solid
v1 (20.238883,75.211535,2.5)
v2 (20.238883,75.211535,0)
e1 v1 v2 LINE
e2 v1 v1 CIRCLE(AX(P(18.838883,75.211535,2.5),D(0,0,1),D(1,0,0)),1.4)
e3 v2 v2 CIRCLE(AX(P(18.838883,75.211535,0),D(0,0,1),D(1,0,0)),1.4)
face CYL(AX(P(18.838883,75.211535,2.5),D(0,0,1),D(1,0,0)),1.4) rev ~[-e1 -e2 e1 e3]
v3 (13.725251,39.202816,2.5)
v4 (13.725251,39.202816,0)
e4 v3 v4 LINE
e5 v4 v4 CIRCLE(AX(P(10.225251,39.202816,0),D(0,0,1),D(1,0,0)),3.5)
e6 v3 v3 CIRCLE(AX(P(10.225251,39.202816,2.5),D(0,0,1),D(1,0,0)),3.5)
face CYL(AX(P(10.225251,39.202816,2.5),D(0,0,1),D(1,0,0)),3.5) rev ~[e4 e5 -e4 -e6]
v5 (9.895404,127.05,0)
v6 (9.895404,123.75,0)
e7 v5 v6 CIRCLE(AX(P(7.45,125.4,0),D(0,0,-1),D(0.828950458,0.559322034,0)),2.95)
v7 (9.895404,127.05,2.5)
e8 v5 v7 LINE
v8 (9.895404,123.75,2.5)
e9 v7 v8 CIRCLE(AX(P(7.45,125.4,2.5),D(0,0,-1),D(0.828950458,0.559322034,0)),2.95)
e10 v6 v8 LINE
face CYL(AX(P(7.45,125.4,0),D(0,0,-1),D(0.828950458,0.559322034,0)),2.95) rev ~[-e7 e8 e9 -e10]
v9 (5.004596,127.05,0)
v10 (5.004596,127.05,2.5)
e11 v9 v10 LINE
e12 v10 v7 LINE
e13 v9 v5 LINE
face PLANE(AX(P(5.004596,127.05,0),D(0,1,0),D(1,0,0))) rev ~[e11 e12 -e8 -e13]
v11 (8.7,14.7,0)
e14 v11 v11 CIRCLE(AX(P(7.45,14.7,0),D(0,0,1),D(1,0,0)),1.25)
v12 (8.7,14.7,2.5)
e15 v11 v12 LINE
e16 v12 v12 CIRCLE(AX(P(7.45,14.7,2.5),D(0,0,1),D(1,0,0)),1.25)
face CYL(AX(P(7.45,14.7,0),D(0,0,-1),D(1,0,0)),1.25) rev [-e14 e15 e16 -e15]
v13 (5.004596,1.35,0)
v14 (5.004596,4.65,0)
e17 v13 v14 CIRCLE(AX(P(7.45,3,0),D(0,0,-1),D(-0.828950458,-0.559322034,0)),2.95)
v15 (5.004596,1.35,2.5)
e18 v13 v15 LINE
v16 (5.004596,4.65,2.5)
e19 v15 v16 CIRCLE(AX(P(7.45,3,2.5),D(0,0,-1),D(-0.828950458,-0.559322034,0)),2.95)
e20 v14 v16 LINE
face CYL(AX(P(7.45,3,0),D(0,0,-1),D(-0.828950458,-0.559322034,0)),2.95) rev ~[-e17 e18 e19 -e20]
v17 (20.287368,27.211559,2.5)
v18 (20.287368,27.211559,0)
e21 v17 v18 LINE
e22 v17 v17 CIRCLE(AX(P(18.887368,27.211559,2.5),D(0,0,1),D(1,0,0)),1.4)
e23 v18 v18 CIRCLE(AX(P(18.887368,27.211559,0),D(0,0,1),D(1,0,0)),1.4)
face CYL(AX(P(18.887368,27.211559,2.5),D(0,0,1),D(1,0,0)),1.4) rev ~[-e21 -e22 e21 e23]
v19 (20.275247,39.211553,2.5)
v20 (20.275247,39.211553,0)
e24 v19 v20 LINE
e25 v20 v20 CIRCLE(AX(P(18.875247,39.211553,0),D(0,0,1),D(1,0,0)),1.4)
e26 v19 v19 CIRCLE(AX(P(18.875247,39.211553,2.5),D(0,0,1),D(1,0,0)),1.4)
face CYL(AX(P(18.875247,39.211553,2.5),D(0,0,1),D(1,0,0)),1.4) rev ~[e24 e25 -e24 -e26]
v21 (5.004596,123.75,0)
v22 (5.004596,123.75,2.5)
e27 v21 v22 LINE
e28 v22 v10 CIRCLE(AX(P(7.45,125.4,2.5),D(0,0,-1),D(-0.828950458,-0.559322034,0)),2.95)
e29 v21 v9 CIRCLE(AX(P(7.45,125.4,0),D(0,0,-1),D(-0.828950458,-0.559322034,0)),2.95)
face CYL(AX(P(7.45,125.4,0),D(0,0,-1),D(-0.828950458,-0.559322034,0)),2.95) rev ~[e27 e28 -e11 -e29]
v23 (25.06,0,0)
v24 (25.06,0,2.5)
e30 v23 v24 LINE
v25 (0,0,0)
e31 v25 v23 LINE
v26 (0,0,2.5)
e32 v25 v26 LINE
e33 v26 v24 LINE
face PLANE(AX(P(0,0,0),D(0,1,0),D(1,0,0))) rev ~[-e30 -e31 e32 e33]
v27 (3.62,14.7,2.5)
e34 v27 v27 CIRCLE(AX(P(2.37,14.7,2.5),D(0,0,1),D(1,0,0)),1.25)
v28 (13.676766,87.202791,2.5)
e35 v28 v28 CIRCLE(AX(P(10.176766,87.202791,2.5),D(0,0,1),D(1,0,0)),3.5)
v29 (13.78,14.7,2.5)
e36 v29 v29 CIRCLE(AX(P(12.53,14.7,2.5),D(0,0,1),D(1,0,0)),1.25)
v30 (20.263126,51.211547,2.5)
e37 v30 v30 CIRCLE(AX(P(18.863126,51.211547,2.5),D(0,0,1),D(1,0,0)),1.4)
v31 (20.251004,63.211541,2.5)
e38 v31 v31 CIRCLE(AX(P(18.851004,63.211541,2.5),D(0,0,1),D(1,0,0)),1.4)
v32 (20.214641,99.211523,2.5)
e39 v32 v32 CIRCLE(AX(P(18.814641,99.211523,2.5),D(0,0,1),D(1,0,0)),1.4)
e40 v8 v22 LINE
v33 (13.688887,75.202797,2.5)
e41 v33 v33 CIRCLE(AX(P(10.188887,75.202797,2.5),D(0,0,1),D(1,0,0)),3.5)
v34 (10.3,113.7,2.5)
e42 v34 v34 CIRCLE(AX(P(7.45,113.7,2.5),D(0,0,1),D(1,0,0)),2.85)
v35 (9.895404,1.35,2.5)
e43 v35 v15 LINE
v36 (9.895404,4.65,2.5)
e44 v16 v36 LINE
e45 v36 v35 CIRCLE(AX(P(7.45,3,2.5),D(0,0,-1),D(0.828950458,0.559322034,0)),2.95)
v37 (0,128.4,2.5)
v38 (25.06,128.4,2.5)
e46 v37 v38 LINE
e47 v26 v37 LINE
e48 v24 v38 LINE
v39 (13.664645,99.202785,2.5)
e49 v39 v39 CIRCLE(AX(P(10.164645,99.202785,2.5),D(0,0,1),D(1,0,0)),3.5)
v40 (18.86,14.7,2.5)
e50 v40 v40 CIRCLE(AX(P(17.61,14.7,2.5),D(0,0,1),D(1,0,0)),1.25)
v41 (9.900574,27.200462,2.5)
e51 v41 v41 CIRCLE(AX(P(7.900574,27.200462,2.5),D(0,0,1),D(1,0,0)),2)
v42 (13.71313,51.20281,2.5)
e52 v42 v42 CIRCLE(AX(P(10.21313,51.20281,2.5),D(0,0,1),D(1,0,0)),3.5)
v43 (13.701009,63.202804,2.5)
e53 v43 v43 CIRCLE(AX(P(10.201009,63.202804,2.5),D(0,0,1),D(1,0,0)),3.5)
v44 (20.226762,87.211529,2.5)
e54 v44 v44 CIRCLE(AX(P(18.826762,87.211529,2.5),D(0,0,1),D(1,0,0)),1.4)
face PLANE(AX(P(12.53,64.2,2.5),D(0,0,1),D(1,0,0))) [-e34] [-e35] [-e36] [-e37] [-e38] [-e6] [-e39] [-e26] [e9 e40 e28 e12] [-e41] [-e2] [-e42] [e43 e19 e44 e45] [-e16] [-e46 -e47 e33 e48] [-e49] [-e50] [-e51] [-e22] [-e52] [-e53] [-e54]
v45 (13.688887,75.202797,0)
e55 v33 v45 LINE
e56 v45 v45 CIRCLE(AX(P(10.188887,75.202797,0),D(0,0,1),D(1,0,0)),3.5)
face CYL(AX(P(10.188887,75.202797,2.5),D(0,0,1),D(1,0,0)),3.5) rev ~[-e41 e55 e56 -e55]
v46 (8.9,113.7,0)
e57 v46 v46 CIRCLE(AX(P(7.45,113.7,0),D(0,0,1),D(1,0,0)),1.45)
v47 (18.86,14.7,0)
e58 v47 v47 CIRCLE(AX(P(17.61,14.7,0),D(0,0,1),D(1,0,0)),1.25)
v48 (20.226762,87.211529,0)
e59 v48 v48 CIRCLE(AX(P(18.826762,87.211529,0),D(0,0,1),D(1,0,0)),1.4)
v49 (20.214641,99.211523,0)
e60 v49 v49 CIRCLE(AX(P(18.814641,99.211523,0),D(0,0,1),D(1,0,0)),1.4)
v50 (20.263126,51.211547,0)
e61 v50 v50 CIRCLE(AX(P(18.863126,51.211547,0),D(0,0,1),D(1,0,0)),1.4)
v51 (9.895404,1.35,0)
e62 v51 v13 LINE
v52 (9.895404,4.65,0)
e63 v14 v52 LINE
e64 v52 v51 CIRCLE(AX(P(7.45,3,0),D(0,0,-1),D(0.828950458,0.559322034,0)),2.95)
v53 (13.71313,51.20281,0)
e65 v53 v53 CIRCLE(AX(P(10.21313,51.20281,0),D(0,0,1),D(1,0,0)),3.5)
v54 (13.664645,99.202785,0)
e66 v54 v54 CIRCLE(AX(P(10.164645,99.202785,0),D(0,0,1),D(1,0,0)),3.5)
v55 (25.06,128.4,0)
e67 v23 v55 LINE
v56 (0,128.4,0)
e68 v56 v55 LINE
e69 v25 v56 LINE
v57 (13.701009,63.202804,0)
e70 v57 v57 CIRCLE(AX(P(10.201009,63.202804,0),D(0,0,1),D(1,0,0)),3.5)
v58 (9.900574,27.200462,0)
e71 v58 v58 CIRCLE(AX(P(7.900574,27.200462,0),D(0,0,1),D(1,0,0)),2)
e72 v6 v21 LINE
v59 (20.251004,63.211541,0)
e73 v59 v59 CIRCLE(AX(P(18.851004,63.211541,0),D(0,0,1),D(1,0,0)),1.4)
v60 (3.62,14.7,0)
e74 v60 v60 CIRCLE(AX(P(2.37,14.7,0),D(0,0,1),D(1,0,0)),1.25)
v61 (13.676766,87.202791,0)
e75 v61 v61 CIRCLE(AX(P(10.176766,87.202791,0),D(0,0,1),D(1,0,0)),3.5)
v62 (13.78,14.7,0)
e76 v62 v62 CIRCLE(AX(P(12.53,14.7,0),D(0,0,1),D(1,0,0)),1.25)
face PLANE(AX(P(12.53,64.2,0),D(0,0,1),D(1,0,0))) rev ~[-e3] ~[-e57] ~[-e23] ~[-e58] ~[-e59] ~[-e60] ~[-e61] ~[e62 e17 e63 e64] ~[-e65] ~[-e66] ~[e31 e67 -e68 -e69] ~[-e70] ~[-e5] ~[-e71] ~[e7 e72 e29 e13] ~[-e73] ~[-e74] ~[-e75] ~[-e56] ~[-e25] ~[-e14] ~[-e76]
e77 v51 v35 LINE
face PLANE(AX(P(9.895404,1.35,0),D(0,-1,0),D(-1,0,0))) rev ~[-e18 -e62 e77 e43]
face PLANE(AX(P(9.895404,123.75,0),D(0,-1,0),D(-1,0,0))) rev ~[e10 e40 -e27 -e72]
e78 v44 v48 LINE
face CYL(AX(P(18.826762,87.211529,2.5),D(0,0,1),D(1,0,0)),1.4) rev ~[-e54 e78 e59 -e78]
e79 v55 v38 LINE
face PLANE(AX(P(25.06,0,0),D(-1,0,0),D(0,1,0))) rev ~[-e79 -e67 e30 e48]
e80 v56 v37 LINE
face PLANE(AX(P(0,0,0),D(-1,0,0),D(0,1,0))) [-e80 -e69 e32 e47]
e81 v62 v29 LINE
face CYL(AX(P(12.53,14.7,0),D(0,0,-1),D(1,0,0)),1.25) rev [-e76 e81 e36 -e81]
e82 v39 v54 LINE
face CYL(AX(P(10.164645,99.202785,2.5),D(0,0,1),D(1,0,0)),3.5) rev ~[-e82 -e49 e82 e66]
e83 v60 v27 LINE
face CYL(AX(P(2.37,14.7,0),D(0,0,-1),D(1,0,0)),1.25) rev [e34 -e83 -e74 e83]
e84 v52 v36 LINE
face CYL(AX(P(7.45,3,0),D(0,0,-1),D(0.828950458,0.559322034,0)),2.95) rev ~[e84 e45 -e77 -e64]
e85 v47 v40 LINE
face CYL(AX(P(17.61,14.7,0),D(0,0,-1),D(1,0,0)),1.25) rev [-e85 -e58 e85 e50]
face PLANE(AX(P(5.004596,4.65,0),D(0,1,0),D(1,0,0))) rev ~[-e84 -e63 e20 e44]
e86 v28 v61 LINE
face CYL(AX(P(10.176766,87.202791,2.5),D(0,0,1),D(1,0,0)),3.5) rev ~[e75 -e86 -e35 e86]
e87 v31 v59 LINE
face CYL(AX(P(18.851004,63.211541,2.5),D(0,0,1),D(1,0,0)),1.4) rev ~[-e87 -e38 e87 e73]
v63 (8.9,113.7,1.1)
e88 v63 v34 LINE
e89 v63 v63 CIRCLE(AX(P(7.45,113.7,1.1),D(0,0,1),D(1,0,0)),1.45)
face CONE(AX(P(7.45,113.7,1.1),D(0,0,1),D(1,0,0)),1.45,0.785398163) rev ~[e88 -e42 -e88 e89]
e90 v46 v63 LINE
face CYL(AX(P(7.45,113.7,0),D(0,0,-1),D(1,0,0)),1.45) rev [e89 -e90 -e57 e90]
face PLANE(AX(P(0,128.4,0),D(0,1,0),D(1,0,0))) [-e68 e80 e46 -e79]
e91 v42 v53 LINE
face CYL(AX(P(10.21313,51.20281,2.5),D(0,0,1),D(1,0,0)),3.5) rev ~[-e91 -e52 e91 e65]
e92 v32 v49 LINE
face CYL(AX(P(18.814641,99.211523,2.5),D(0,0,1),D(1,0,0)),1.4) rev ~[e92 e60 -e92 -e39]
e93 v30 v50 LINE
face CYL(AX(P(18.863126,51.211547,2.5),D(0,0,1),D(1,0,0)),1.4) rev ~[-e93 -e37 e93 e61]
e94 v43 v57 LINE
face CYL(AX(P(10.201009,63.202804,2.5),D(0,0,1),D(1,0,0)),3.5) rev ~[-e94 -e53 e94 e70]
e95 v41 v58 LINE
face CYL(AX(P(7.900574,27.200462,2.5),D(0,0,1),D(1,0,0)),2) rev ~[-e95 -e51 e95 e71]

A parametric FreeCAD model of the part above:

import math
import FreeCAD as App
import Part
import Sketcher
Q = App.Units.Quantity


def edges_at(feature, points):
    """Names of the edges that pass closest to the given points."""
    edges = feature.Shape.Edges
    near = lambda p: min(range(len(edges)), key=lambda i: edges[i].distToShape(Part.Vertex(*p))[0])
    return sorted({f"Edge{near(p) + 1}" for p in points})

doc = App.newDocument("Part")
params = doc.addObject("Spreadsheet::Sheet", "Params")
for row, (alias, value) in enumerate([
    ("sketch1_diameter", "2.5 mm"),
    ("sketch1_diameter2", "2.9 mm"),
    ("sketch1_radius", "2.95 mm"),
    ("sketch1_height", "128.4 mm"),
    ("sketch1_width", "25.06 mm"),
    ("pad1_length", "2.5 mm"),
    ("chamfer_size", "1.4 mm"),
    ("sketch2_diameter", "7 mm"),
    ("sketch2_diameter2", "4 mm"),
    ("sketch2_diameter3", "2.8 mm"),
], start=1):
    params.set(f"A{row}", alias)
    params.set(f"B{row}", "=" + value)
    params.setAlias(f"B{row}", alias)

body = doc.addObject("PartDesign::Body", "Body")

# Sketch on XY plane
sketch1 = body.newObject("Sketcher::SketchObject", "Sketch")
sketch1.AttachmentSupport = (doc.getObject("XY_Plane"), [""])
sketch1.MapMode = "FlatFace"
sketch1.addGeometry([
    Part.LineSegment(App.Vector(0, 128.4, 0), App.Vector(0, 0, 0)),  # 0
    Part.LineSegment(App.Vector(0, 0, 0), App.Vector(25.1, 0, 0)),  # 1
    Part.LineSegment(App.Vector(25.1, 0, 0), App.Vector(25.1, 128.4, 0)),  # 2
    Part.LineSegment(App.Vector(25.1, 128.4, 0), App.Vector(0, 128.4, 0)),  # 3
    Part.Circle(App.Vector(2.4, 14.7, 0), App.Vector(0, 0, 1), 1.2),  # 4
    Part.ArcOfCircle(Part.Circle(App.Vector(7.5, 3, 0), App.Vector(0, 0, 1), 2.9), math.radians(-34), math.radians(34)),  # 5
    Part.LineSegment(App.Vector(9.9, 1.4, 0), App.Vector(5, 1.4, 0)),  # 6
    Part.ArcOfCircle(Part.Circle(App.Vector(7.4, 3, 0), App.Vector(0, 0, 1), 2.9), math.radians(146), math.radians(214)),  # 7
    Part.LineSegment(App.Vector(5, 4.7, 0), App.Vector(9.9, 4.7, 0)),  # 8
    Part.Circle(App.Vector(7.5, 14.7, 0), App.Vector(0, 0, 1), 1.2),  # 9
    Part.Circle(App.Vector(12.5, 14.7, 0), App.Vector(0, 0, 1), 1.2),  # 10
    Part.Circle(App.Vector(17.6, 14.7, 0), App.Vector(0, 0, 1), 1.2),  # 11
    Part.Circle(App.Vector(7.5, 113.7, 0), App.Vector(0, 0, 1), 1.4),  # 12
    Part.ArcOfCircle(Part.Circle(App.Vector(7.5, 125.4, 0), App.Vector(0, 0, 1), 2.9), math.radians(-34), math.radians(34)),  # 13
    Part.LineSegment(App.Vector(9.9, 123.8, 0), App.Vector(5, 123.8, 0)),  # 14
    Part.ArcOfCircle(Part.Circle(App.Vector(7.4, 125.4, 0), App.Vector(0, 0, 1), 2.9), math.radians(146), math.radians(214)),  # 15
    Part.LineSegment(App.Vector(5, 127, 0), App.Vector(9.9, 127, 0)),  # 16
], False)
sketch1.addConstraint([
    Sketcher.Constraint("Coincident", 0, 2, 1, 1),
    Sketcher.Constraint("Coincident", 1, 2, 2, 1),
    Sketcher.Constraint("Coincident", 2, 2, 3, 1),
    Sketcher.Constraint("Coincident", 3, 2, 0, 1),
    Sketcher.Constraint("Coincident", 5, 1, 6, 1),
    Sketcher.Constraint("Coincident", 6, 2, 7, 2),
    Sketcher.Constraint("Coincident", 7, 1, 8, 1),
    Sketcher.Constraint("Coincident", 8, 2, 5, 2),
    Sketcher.Constraint("Coincident", 13, 1, 14, 1),
    Sketcher.Constraint("Coincident", 14, 2, 15, 2),
    Sketcher.Constraint("Coincident", 15, 1, 16, 1),
    Sketcher.Constraint("Coincident", 16, 2, 13, 2),
    Sketcher.Constraint("Vertical", 0),
    Sketcher.Constraint("Horizontal", 1),
    Sketcher.Constraint("Vertical", 2),
    Sketcher.Constraint("Horizontal", 3),
    Sketcher.Constraint("Horizontal", 6),
    Sketcher.Constraint("Horizontal", 8),
    Sketcher.Constraint("Horizontal", 14),
    Sketcher.Constraint("Horizontal", 16),
    Sketcher.Constraint("Coincident", 0, 2, -1, 1),
    Sketcher.Constraint("Coincident", 7, 3, 5, 3),
    Sketcher.Constraint("Coincident", 15, 3, 13, 3),
    Sketcher.Constraint("Equal", 5, 7),
    Sketcher.Constraint("Equal", 4, 9),
    Sketcher.Constraint("Equal", 9, 10),
    Sketcher.Constraint("Equal", 10, 11),
    Sketcher.Constraint("Equal", 7, 13),
    Sketcher.Constraint("Equal", 13, 15),
    Sketcher.Constraint("Horizontal", 4, 3, 9, 3),
    Sketcher.Constraint("Horizontal", 9, 3, 10, 3),
    Sketcher.Constraint("Horizontal", 10, 3, 11, 3),
    Sketcher.Constraint("Vertical", 7, 3, 9, 3),
    Sketcher.Constraint("Vertical", 9, 3, 12, 3),
    Sketcher.Constraint("Vertical", 12, 3, 13, 3),
    Sketcher.Constraint("Vertical", 6, 2, 7, 1),
    Sketcher.Constraint("Vertical", 8, 2, 13, 1),
    Sketcher.Constraint("Vertical", 14, 2, 15, 1),
    Sketcher.Constraint("Diameter", 4, Q("2.5 mm")),
    Sketcher.Constraint("Diameter", 12, Q("2.9 mm")),
    Sketcher.Constraint("Radius", 5, Q("2.95 mm")),
    Sketcher.Constraint("DistanceY", 0, 2, 0, 1, Q("128.4 mm")),
    Sketcher.Constraint("DistanceY", -1, 1, 5, 3, Q("3 mm")),
    Sketcher.Constraint("DistanceY", 9, 3, 12, 3, Q("99 mm")),
    Sketcher.Constraint("DistanceY", 13, 3, 2, 2, Q("3 mm")),
    Sketcher.Constraint("DistanceX", 1, 1, 1, 2, Q("25.06 mm")),
    Sketcher.Constraint("DistanceY", -1, 1, 4, 3, Q("14.7 mm")),
    Sketcher.Constraint("DistanceY", 6, 2, 7, 1, Q("3.3 mm")),
    Sketcher.Constraint("DistanceX", -1, 1, 4, 3, Q("2.37 mm")),
    Sketcher.Constraint("DistanceX", -1, 1, 5, 3, Q("7.45 mm")),
    Sketcher.Constraint("DistanceX", -1, 1, 10, 3, Q("12.53 mm")),
    Sketcher.Constraint("DistanceX", -1, 1, 11, 3, Q("17.61 mm")),
])
sketch1.setExpression("Constraints[38]", "Params.sketch1_diameter")
sketch1.setExpression("Constraints[39]", "Params.sketch1_diameter2")
sketch1.setExpression("Constraints[40]", "Params.sketch1_radius")
sketch1.setExpression("Constraints[41]", "Params.sketch1_height")
sketch1.setExpression("Constraints[45]", "Params.sketch1_width")
pad1 = body.newObject("PartDesign::Pad", "Pad")
pad1.Profile = sketch1
pad1.setExpression("Length", "Params.pad1_length")
doc.recompute()

chamfer = body.newObject("PartDesign::Chamfer", "Chamfer")
chamfer.Base = (pad1, edges_at(pad1, [(6, 113.7, 2.5)]))
chamfer.setExpression("Size", "Params.chamfer_size")

# Sketch on XY plane
sketch2 = body.newObject("Sketcher::SketchObject", "Sketch001")
sketch2.AttachmentSupport = (doc.getObject("XY_Plane"), [""])
sketch2.MapMode = "FlatFace"
sketch2.AttachmentOffset = App.Placement(App.Vector(0, 0, 2.5), App.Rotation())
sketch2.addGeometry([
    Part.Circle(App.Vector(18.8, 99.2, 0), App.Vector(0, 0, 1), 1.4),  # 0
    Part.Circle(App.Vector(18.8, 87.2, 0), App.Vector(0, 0, 1), 1.4),  # 1
    Part.Circle(App.Vector(18.8, 75.2, 0), App.Vector(0, 0, 1), 1.4),  # 2
    Part.Circle(App.Vector(18.9, 63.2, 0), App.Vector(0, 0, 1), 1.4),  # 3
    Part.Circle(App.Vector(18.9, 51.2, 0), App.Vector(0, 0, 1), 1.4),  # 4
    Part.Circle(App.Vector(18.9, 39.2, 0), App.Vector(0, 0, 1), 1.4),  # 5
    Part.Circle(App.Vector(18.9, 27.2, 0), App.Vector(0, 0, 1), 1.4),  # 6
    Part.Circle(App.Vector(10.2, 99.2, 0), App.Vector(0, 0, 1), 3.5),  # 7
    Part.Circle(App.Vector(10.2, 87.2, 0), App.Vector(0, 0, 1), 3.5),  # 8
    Part.Circle(App.Vector(10.2, 75.2, 0), App.Vector(0, 0, 1), 3.5),  # 9
    Part.Circle(App.Vector(10.2, 63.2, 0), App.Vector(0, 0, 1), 3.5),  # 10
    Part.Circle(App.Vector(10.2, 51.2, 0), App.Vector(0, 0, 1), 3.5),  # 11
    Part.Circle(App.Vector(10.2, 39.2, 0), App.Vector(0, 0, 1), 3.5),  # 12
    Part.Circle(App.Vector(7.9, 27.2, 0), App.Vector(0, 0, 1), 2),  # 13
], False)
sketch2.addConstraint([
    Sketcher.Constraint("Equal", 0, 1),
    Sketcher.Constraint("Equal", 1, 2),
    Sketcher.Constraint("Equal", 2, 3),
    Sketcher.Constraint("Equal", 3, 4),
    Sketcher.Constraint("Equal", 4, 5),
    Sketcher.Constraint("Equal", 5, 6),
    Sketcher.Constraint("Equal", 7, 8),
    Sketcher.Constraint("Equal", 8, 9),
    Sketcher.Constraint("Equal", 9, 10),
    Sketcher.Constraint("Equal", 10, 11),
    Sketcher.Constraint("Equal", 11, 12),
    Sketcher.Constraint("Diameter", 7, Q("7 mm")),
    Sketcher.Constraint("Diameter", 13, Q("4 mm")),
    Sketcher.Constraint("Diameter", 0, Q("2.8 mm")),
    Sketcher.Constraint("DistanceX", -1, 1, 0, 3, Q("18.814641 mm")),
    Sketcher.Constraint("DistanceX", -1, 1, 1, 3, Q("18.826762 mm")),
    Sketcher.Constraint("DistanceY", -1, 1, 1, 3, Q("87.211529 mm")),
    Sketcher.Constraint("DistanceY", -1, 1, 3, 3, Q("63.211541 mm")),
    Sketcher.Constraint("DistanceY", -1, 1, 6, 3, Q("27.211559 mm")),
    Sketcher.Constraint("DistanceY", -1, 1, 8, 3, Q("87.202791 mm")),
    Sketcher.Constraint("DistanceX", -1, 1, 10, 3, Q("10.201009 mm")),
    Sketcher.Constraint("DistanceX", -1, 1, 11, 3, Q("10.21313 mm")),
    Sketcher.Constraint("DistanceY", -1, 1, 11, 3, Q("51.20281 mm")),
    Sketcher.Constraint("DistanceX", -1, 1, 12, 3, Q("10.225251 mm")),
    Sketcher.Constraint("DistanceY", -1, 1, 13, 3, Q("27.200462 mm")),
    Sketcher.Constraint("DistanceX", 1, 3, 2, 3, Q("0.012121 mm")),
    Sketcher.Constraint("DistanceX", 2, 3, 3, 3, Q("0.012121 mm")),
    Sketcher.Constraint("DistanceY", 3, 3, 0, 3, Q("35.999982 mm")),
    Sketcher.Constraint("DistanceX", 3, 3, 4, 3, Q("0.012121 mm")),
    Sketcher.Constraint("DistanceY", 4, 3, 1, 3, Q("35.999982 mm")),
    Sketcher.Constraint("DistanceX", 4, 3, 5, 3, Q("0.012121 mm")),
    Sketcher.Constraint("DistanceY", 5, 3, 2, 3, Q("35.999982 mm")),
    Sketcher.Constraint("DistanceY", 5, 3, 0, 3, Q("59.999969 mm")),
    Sketcher.Constraint("DistanceX", 5, 3, 6, 3, Q("0.012121 mm")),
    Sketcher.Constraint("DistanceX", 7, 3, 2, 3, Q("8.674238 mm")),
    Sketcher.Constraint("DistanceY", 2, 3, 7, 3, Q("23.99125 mm")),
    Sketcher.Constraint("DistanceX", 7, 3, 8, 3, Q("0.012121 mm")),
    Sketcher.Constraint("DistanceX", 8, 3, 9, 3, Q("0.012121 mm")),
    Sketcher.Constraint("DistanceY", 9, 3, 1, 3, Q("12.008731 mm")),
    Sketcher.Constraint("DistanceY", 10, 3, 2, 3, Q("12.008731 mm")),
    Sketcher.Constraint("DistanceY", 12, 3, 4, 3, Q("12.008731 mm")),
    Sketcher.Constraint("DistanceX", -1, 1, 13, 3, Q("7.900574 mm")),
])
sketch2.setExpression("Constraints[11]", "Params.sketch2_diameter")
sketch2.setExpression("Constraints[12]", "Params.sketch2_diameter2")
sketch2.setExpression("Constraints[13]", "Params.sketch2_diameter3")
pocket1 = body.newObject("PartDesign::Pocket", "Pocket")
pocket1.Profile = sketch2
pocket1.Type = "ThroughAll"

doc.recompute()
